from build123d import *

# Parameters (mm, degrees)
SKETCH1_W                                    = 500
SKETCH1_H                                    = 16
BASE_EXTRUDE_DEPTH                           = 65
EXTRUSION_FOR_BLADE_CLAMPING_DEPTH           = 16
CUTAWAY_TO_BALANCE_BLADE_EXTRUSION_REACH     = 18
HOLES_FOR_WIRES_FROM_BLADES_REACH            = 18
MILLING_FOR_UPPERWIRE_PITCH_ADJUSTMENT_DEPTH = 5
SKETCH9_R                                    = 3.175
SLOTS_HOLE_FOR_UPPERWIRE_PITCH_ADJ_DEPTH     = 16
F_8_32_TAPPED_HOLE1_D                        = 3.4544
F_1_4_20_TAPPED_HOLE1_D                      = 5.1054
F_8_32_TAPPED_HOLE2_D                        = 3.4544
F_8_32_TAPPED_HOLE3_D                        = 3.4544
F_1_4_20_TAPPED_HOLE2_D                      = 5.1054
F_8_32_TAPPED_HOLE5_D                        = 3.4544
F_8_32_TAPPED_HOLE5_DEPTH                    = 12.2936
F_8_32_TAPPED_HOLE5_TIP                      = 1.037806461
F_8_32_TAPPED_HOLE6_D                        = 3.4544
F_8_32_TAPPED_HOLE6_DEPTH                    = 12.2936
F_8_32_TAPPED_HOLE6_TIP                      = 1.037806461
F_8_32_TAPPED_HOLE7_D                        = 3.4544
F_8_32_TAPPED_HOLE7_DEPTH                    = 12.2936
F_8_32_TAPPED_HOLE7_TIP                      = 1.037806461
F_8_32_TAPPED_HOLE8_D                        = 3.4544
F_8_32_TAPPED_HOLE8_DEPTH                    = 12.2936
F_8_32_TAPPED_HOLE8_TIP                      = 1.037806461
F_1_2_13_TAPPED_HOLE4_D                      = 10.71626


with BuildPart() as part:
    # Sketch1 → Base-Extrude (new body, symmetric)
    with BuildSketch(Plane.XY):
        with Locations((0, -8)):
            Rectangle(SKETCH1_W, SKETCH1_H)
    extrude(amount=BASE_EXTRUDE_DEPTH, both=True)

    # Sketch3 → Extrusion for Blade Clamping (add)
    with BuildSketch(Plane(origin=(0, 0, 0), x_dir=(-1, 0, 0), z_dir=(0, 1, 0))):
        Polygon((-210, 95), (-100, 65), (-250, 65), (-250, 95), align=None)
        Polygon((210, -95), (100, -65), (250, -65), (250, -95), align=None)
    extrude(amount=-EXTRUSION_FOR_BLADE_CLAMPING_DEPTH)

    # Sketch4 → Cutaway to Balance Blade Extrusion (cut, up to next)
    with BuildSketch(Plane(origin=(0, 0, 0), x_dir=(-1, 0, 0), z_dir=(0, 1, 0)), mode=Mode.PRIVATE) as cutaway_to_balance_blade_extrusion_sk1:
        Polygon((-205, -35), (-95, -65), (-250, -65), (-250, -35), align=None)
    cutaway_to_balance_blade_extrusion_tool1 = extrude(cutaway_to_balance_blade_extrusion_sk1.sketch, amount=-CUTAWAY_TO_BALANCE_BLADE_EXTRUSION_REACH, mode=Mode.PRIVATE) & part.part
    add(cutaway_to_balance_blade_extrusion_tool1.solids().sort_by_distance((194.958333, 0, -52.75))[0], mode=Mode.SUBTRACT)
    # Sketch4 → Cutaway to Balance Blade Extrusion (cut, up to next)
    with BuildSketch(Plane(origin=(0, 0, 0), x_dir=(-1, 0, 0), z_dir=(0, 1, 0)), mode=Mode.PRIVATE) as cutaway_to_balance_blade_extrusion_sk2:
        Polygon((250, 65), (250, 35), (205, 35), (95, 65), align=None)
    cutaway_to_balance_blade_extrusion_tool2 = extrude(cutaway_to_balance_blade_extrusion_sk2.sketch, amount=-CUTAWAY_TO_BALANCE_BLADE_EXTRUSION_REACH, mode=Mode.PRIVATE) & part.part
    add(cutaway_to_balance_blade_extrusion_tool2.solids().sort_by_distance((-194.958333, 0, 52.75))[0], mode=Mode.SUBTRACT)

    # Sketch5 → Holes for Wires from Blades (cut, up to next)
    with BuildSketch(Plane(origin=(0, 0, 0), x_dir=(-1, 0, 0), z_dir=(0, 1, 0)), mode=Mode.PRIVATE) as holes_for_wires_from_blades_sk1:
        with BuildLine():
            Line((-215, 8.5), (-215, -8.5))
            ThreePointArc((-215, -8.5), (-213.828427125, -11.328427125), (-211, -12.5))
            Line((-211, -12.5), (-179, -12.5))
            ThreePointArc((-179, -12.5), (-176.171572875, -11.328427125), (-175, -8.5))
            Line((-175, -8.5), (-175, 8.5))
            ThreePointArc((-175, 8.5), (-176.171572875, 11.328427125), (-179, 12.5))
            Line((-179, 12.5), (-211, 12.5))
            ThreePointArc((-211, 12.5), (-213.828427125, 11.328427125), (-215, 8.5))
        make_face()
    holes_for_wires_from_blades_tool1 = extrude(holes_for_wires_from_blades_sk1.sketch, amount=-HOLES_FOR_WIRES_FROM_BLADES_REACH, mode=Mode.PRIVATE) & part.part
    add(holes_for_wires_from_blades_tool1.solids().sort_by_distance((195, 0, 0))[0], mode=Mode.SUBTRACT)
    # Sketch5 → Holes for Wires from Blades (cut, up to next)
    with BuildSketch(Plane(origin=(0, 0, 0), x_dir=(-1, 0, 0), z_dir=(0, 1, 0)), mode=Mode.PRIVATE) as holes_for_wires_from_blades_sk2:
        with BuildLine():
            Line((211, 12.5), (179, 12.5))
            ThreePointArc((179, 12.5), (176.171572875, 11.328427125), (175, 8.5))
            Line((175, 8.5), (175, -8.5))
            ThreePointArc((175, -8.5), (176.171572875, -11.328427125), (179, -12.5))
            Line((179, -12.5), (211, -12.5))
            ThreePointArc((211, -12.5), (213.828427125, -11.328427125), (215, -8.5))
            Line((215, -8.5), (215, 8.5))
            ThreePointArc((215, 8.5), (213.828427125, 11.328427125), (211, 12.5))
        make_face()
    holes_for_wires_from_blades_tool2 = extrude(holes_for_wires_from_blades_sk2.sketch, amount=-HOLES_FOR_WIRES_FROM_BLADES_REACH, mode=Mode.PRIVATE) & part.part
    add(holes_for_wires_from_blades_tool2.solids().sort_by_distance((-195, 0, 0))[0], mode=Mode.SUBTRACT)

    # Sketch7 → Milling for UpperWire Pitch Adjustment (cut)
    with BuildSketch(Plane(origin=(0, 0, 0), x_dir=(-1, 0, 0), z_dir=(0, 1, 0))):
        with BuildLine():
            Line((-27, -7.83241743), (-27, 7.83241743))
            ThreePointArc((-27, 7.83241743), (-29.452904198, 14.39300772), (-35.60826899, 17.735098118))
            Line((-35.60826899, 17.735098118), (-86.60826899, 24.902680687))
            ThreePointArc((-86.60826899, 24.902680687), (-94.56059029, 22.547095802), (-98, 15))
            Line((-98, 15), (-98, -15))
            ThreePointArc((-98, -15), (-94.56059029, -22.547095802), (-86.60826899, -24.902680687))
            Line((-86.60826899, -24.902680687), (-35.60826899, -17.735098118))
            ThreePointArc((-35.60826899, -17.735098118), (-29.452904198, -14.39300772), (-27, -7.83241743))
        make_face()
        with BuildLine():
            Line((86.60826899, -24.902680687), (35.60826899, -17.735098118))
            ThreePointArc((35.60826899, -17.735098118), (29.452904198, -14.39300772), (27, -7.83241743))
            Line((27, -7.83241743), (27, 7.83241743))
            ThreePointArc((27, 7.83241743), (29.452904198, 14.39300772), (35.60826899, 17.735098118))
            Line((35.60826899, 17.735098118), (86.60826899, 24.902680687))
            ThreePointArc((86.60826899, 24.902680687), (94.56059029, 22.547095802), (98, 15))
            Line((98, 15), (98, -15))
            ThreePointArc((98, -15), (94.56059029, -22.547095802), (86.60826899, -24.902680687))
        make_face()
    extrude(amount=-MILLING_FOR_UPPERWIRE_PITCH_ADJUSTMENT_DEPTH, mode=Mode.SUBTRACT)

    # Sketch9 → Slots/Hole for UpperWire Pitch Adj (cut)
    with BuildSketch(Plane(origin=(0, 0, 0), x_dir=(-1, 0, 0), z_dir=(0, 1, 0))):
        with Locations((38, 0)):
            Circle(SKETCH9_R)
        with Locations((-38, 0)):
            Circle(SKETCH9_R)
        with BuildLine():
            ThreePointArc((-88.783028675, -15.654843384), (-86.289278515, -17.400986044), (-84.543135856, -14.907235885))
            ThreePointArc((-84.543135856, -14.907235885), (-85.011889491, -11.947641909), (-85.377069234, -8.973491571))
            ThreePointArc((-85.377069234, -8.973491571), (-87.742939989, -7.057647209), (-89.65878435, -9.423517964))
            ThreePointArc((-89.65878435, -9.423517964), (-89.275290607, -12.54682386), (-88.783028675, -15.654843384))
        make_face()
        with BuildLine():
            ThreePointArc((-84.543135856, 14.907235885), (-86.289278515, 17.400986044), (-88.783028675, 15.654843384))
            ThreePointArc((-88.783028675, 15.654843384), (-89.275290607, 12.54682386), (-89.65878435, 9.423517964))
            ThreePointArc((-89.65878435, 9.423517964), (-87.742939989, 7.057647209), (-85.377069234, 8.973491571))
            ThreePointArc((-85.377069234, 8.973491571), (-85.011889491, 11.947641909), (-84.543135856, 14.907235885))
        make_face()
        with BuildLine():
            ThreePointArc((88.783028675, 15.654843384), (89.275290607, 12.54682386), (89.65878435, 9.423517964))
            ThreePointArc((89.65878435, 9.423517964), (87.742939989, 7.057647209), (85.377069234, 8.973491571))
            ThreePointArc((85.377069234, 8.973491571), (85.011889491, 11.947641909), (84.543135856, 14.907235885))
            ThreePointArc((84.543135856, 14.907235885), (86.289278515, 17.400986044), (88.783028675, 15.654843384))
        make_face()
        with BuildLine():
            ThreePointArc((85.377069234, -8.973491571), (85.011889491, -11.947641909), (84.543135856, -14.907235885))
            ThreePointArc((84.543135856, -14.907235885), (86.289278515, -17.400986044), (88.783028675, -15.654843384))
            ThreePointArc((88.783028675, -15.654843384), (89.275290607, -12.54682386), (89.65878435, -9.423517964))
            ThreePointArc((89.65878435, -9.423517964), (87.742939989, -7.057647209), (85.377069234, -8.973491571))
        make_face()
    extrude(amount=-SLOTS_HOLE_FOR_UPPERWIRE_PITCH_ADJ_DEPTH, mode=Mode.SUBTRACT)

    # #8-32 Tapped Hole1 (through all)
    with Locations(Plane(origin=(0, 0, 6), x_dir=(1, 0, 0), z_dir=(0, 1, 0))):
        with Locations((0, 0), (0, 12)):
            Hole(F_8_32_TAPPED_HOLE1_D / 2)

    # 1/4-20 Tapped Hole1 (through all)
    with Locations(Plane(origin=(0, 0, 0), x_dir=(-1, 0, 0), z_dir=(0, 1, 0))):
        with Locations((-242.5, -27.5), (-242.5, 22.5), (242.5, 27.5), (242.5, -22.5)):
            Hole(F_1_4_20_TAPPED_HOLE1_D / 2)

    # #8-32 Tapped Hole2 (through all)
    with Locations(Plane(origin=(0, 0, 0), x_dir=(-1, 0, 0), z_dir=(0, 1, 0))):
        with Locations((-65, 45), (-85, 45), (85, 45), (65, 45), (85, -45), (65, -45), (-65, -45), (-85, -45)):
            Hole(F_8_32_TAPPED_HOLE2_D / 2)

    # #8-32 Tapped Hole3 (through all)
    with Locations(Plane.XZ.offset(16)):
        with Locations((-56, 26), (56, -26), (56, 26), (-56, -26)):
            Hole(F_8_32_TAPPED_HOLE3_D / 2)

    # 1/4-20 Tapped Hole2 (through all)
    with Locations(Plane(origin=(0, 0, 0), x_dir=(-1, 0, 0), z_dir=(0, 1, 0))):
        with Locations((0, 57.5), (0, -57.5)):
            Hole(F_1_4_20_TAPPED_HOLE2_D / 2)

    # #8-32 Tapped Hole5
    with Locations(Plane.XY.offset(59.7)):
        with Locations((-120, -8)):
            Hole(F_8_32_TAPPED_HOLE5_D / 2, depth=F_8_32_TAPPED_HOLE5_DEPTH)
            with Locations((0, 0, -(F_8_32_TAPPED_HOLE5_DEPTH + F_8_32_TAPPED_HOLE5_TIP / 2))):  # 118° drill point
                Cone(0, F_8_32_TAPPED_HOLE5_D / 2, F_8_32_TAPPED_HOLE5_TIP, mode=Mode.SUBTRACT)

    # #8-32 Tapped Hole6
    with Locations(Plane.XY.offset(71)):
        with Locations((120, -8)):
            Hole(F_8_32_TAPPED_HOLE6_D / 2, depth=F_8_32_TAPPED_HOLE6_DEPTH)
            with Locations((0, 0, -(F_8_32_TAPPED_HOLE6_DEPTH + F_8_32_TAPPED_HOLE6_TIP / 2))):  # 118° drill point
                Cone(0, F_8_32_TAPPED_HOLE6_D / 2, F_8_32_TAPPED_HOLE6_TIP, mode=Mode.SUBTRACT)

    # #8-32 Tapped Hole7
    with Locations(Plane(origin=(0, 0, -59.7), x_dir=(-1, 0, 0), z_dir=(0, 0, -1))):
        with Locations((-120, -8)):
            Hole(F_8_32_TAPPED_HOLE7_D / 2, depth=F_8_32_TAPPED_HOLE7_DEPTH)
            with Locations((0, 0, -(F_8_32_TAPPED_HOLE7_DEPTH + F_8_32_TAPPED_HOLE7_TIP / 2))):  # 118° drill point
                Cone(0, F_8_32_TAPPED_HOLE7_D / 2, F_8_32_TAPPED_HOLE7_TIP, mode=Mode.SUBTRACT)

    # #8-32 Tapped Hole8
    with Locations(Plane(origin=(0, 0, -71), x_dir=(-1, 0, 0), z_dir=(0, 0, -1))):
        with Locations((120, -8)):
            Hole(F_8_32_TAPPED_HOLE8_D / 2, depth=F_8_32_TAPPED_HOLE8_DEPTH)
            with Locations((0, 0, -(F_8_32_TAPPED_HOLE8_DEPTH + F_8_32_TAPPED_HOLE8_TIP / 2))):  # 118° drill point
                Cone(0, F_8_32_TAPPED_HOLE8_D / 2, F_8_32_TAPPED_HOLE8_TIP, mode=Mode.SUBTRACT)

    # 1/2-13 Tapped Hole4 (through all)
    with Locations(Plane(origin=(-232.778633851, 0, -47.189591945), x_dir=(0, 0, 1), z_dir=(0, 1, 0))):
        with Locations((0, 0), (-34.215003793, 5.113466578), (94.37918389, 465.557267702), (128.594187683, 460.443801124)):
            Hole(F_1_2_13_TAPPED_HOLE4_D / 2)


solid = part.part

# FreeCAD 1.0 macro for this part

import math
import FreeCAD as App
import Part
import Sketcher

V = App.Vector
Q = App.Units.Quantity


def add_polygon(sketch, points):
    """Adds a closed chain of lines whose ends are joined by coincident constraints."""
    first, n = sketch.GeometryCount, len(points)
    for a, b in zip(points, points[1:] + points[:1]):
        sketch.addGeometry(Part.LineSegment(App.Vector(*a, 0), App.Vector(*b, 0)), False)
    for i in range(n):
        sketch.addConstraint(Sketcher.Constraint("Coincident", first + i, 2, first + (i + 1) % n, 1))

doc = App.newDocument("Part")
body = doc.addObject("PartDesign::Body", "Body")

# Sketch on XY plane
sketch1 = body.newObject("Sketcher::SketchObject", "Sketch")
sketch1.AttachmentSupport = (doc.getObject("XY_Plane"), [""])
sketch1.MapMode = "FlatFace"
add_polygon(sketch1, [(-250, 0), (-250, -16), (250, -16), (250, 0)])  # lines 0-3
sketch1.addConstraint([
    Sketcher.Constraint("Vertical", 0),
    Sketcher.Constraint("Horizontal", 1),
    Sketcher.Constraint("Vertical", 2),
    Sketcher.Constraint("Horizontal", 3),
    Sketcher.Constraint("Symmetric", 2, 2, 3, 2, -1, 1),
    Sketcher.Constraint("DistanceX", 1, 1, 1, 2, Q("500 mm")),
    Sketcher.Constraint("DistanceY", 0, 2, 0, 1, Q("16 mm")),
])
pad1 = body.newObject("PartDesign::Pad", "Pad")
pad1.Profile = sketch1
pad1.Length = 130
pad1.Midplane = True

# Sketch on XZ plane
sketch2 = body.newObject("Sketcher::SketchObject", "Sketch001")
sketch2.AttachmentSupport = (doc.getObject("XZ_Plane"), [""])
sketch2.MapMode = "FlatFace"
add_polygon(sketch2, [(100, 65), (210, 95), (250, 95), (250, 65)])  # lines 0-3
add_polygon(sketch2, [(-100, -65), (-210, -95), (-250, -95), (-250, -65)])  # lines 4-7
sketch2.addConstraint([
    Sketcher.Constraint("Horizontal", 1),
    Sketcher.Constraint("Vertical", 2),
    Sketcher.Constraint("Horizontal", 3),
    Sketcher.Constraint("Horizontal", 5),
    Sketcher.Constraint("Vertical", 6),
    Sketcher.Constraint("Horizontal", 7),
    Sketcher.Constraint("Symmetric", 0, 2, 4, 2, -1, 1),
    Sketcher.Constraint("Symmetric", 2, 2, 6, 2, -1, 1),
    Sketcher.Constraint("Parallel", 0, 4),
    Sketcher.Constraint("DistanceX", 1, 1, 1, 2, Q("40 mm")),
    Sketcher.Constraint("DistanceX", 3, 2, 3, 1, Q("150 mm")),
    Sketcher.Constraint("DistanceY", 2, 2, 2, 1, Q("30 mm")),
    Sketcher.Constraint("DistanceX", -1, 1, 0, 2, Q("210 mm")),
    Sketcher.Constraint("DistanceY", -1, 1, 0, 2, Q("95 mm")),
])
pad2 = body.newObject("PartDesign::Pad", "Pad001")
pad2.Profile = sketch2
pad2.Length = 16

# Sketch on XZ plane
sketch3 = body.newObject("Sketcher::SketchObject", "Sketch002")
sketch3.AttachmentSupport = (doc.getObject("XZ_Plane"), [""])
sketch3.MapMode = "FlatFace"
add_polygon(sketch3, [(95, -65), (205, -35), (250, -35), (250, -65)])  # lines 0-3
sketch3.addConstraint([
    Sketcher.Constraint("Horizontal", 1),
    Sketcher.Constraint("Vertical", 2),
    Sketcher.Constraint("Horizontal", 3),
    Sketcher.Constraint("DistanceX", 1, 1, 1, 2, Q("45 mm")),
    Sketcher.Constraint("DistanceX", 3, 2, 3, 1, Q("155 mm")),
    Sketcher.Constraint("DistanceY", 2, 2, 2, 1, Q("30 mm")),
    Sketcher.Constraint("DistanceX", -1, 1, 0, 2, Q("205 mm")),
    Sketcher.Constraint("DistanceY", 0, 2, -1, 1, Q("35 mm")),
])
pocket1 = body.newObject("PartDesign::Pocket", "Pocket")
pocket1.Profile = sketch3
pocket1.Type = "UpToFirst"
pocket1.Reversed = True

# Sketch on XZ plane
sketch4 = body.newObject("Sketcher::SketchObject", "Sketch003")
sketch4.AttachmentSupport = (doc.getObject("XZ_Plane"), [""])
sketch4.MapMode = "FlatFace"
add_polygon(sketch4, [(-250, 35), (-250, 65), (-95, 65), (-205, 35)])  # lines 0-3
sketch4.addConstraint([
    Sketcher.Constraint("Vertical", 0),
    Sketcher.Constraint("Horizontal", 1),
    Sketcher.Constraint("Horizontal", 3),
    Sketcher.Constraint("DistanceX", 1, 1, 1, 2, Q("155 mm")),
    Sketcher.Constraint("DistanceX", 3, 2, 3, 1, Q("45 mm")),
    Sketcher.Constraint("DistanceY", 0, 1, 0, 2, Q("30 mm")),
    Sketcher.Constraint("DistanceX", 0, 2, -1, 1, Q("250 mm")),
    Sketcher.Constraint("DistanceY", -1, 1, 0, 2, Q("65 mm")),
])
pocket2 = body.newObject("PartDesign::Pocket", "Pocket001")
pocket2.Profile = sketch4
pocket2.Type = "UpToFirst"
pocket2.Reversed = True

# Sketch on XZ plane
sketch5 = body.newObject("Sketcher::SketchObject", "Sketch004")
sketch5.AttachmentSupport = (doc.getObject("XZ_Plane"), [""])
sketch5.MapMode = "FlatFace"
sketch5.addGeometry([
    Part.LineSegment(V(215, 8.5, 0), V(215, -8.5, 0)),  # 0
    Part.ArcOfCircle(Part.Circle(V(211, -8.5, 0), V(0, 0, 1), 4), math.radians(-90), math.radians(0)),  # 1
    Part.LineSegment(V(211, -12.5, 0), V(179, -12.5, 0)),  # 2
    Part.ArcOfCircle(Part.Circle(V(179, -8.5, 0), V(0, 0, 1), 4), math.radians(180), math.radians(270)),  # 3
    Part.LineSegment(V(175, -8.5, 0), V(175, 8.5, 0)),  # 4
    Part.ArcOfCircle(Part.Circle(V(179, 8.5, 0), V(0, 0, 1), 4), math.radians(90), math.radians(180)),  # 5
    Part.LineSegment(V(179, 12.5, 0), V(211, 12.5, 0)),  # 6
    Part.ArcOfCircle(Part.Circle(V(211, 8.5, 0), V(0, 0, 1), 4), math.radians(0), math.radians(90)),  # 7
], False)
sketch5.addConstraint([
    Sketcher.Constraint("Tangent", 0, 2, 1, 2),
    Sketcher.Constraint("Tangent", 1, 1, 2, 1),
    Sketcher.Constraint("Tangent", 2, 2, 3, 2),
    Sketcher.Constraint("Tangent", 3, 1, 4, 1),
    Sketcher.Constraint("Tangent", 4, 2, 5, 2),
    Sketcher.Constraint("Tangent", 5, 1, 6, 1),
    Sketcher.Constraint("Tangent", 6, 2, 7, 2),
    Sketcher.Constraint("Tangent", 7, 1, 0, 1),
    Sketcher.Constraint("Vertical", 0),
    Sketcher.Constraint("Horizontal", 2),
    Sketcher.Constraint("Vertical", 4),
    Sketcher.Constraint("Horizontal", 6),
    Sketcher.Constraint("Equal", 1, 3),
    Sketcher.Constraint("Equal", 3, 5),
    Sketcher.Constraint("Equal", 5, 7),
    Sketcher.Constraint("Radius", 1, Q("4 mm")),
    Sketcher.Constraint("DistanceX", 2, 2, 2, 1, Q("32 mm")),
    Sketcher.Constraint("DistanceY", 0, 2, 0, 1, Q("17 mm")),
    Sketcher.Constraint("DistanceX", -1, 1, 1, 3, Q("211 mm")),
    Sketcher.Constraint("DistanceY", 1, 3, -1, 1, Q("8.5 mm")),
])
pocket3 = body.newObject("PartDesign::Pocket", "Pocket002")
pocket3.Profile = sketch5
pocket3.Type = "UpToFirst"
pocket3.Reversed = True

# Sketch on XZ plane
sketch6 = body.newObject("Sketcher::SketchObject", "Sketch005")
sketch6.AttachmentSupport = (doc.getObject("XZ_Plane"), [""])
sketch6.MapMode = "FlatFace"
sketch6.addGeometry([
    Part.LineSegment(V(-211, 12.5, 0), V(-179, 12.5, 0)),  # 0
    Part.ArcOfCircle(Part.Circle(V(-179, 8.5, 0), V(0, 0, 1), 4), math.radians(0), math.radians(90)),  # 1
    Part.LineSegment(V(-175, 8.5, 0), V(-175, -8.5, 0)),  # 2
    Part.ArcOfCircle(Part.Circle(V(-179, -8.5, 0), V(0, 0, 1), 4), math.radians(-90), math.radians(0)),  # 3
    Part.LineSegment(V(-179, -12.5, 0), V(-211, -12.5, 0)),  # 4
    Part.ArcOfCircle(Part.Circle(V(-211, -8.5, 0), V(0, 0, 1), 4), math.radians(180), math.radians(270)),  # 5
    Part.LineSegment(V(-215, -8.5, 0), V(-215, 8.5, 0)),  # 6
    Part.ArcOfCircle(Part.Circle(V(-211, 8.5, 0), V(0, 0, 1), 4), math.radians(90), math.radians(180)),  # 7
], False)
sketch6.addConstraint([
    Sketcher.Constraint("Tangent", 0, 2, 1, 2),
    Sketcher.Constraint("Tangent", 1, 1, 2, 1),
    Sketcher.Constraint("Tangent", 2, 2, 3, 2),
    Sketcher.Constraint("Tangent", 3, 1, 4, 1),
    Sketcher.Constraint("Tangent", 4, 2, 5, 2),
    Sketcher.Constraint("Tangent", 5, 1, 6, 1),
    Sketcher.Constraint("Tangent", 6, 2, 7, 2),
    Sketcher.Constraint("Tangent", 7, 1, 0, 1),
    Sketcher.Constraint("Horizontal", 0),
    Sketcher.Constraint("Vertical", 2),
    Sketcher.Constraint("Horizontal", 4),
    Sketcher.Constraint("Vertical", 6),
    Sketcher.Constraint("Equal", 1, 3),
    Sketcher.Constraint("Equal", 3, 5),
    Sketcher.Constraint("Equal", 5, 7),
    Sketcher.Constraint("Radius", 1, Q("4 mm")),
    Sketcher.Constraint("DistanceX", 0, 1, 0, 2, Q("32 mm")),
    Sketcher.Constraint("DistanceY", 2, 2, 2, 1, Q("17 mm")),
    Sketcher.Constraint("DistanceX", 1, 3, -1, 1, Q("179 mm")),
    Sketcher.Constraint("DistanceY", -1, 1, 1, 3, Q("8.5 mm")),
])
pocket4 = body.newObject("PartDesign::Pocket", "Pocket003")
pocket4.Profile = sketch6
pocket4.Type = "UpToFirst"
pocket4.Reversed = True

# Sketch on XZ plane
sketch7 = body.newObject("Sketcher::SketchObject", "Sketch006")
sketch7.AttachmentSupport = (doc.getObject("XZ_Plane"), [""])
sketch7.MapMode = "FlatFace"
sketch7.addGeometry([
    Part.LineSegment(V(27, -8, 0), V(27, 8, 0)),  # 0
    Part.ArcOfCircle(Part.Circle(V(37, 8, 0), V(0, 0, 1), 10), math.radians(98), math.radians(180)),  # 1
    Part.LineSegment(V(36, 18, 0), V(87, 25, 0)),  # 2
    Part.ArcOfCircle(Part.Circle(V(88, 15, 0), V(0, 0, 1), 10), math.radians(0), math.radians(98)),  # 3
    Part.LineSegment(V(98, 15, 0), V(98, -15, 0)),  # 4
    Part.ArcOfCircle(Part.Circle(V(88, -15, 0), V(0, 0, 1), 10), math.radians(-98), math.radians(0)),  # 5
    Part.LineSegment(V(87, -25, 0), V(36, -18, 0)),  # 6
    Part.ArcOfCircle(Part.Circle(V(37, -8, 0), V(0, 0, 1), 10), math.radians(-180), math.radians(-98)),  # 7
    Part.LineSegment(V(-36, -18, 0), V(-87, -25, 0)),  # 8
    Part.ArcOfCircle(Part.Circle(V(-88, -15, 0), V(0, 0, 1), 10), math.radians(180), math.radians(278)),  # 9
    Part.LineSegment(V(-98, -15, 0), V(-98, 15, 0)),  # 10
    Part.ArcOfCircle(Part.Circle(V(-88, 15, 0), V(0, 0, 1), 10), math.radians(82), math.radians(180)),  # 11
    Part.LineSegment(V(-87, 25, 0), V(-36, 18, 0)),  # 12
    Part.ArcOfCircle(Part.Circle(V(-37, 8, 0), V(0, 0, 1), 10), math.radians(0), math.radians(82)),  # 13
    Part.LineSegment(V(-27, 8, 0), V(-27, -8, 0)),  # 14
    Part.ArcOfCircle(Part.Circle(V(-37, -8, 0), V(0, 0, 1), 10), math.radians(-82), math.radians(0)),  # 15
], False)
sketch7.addConstraint([
    Sketcher.Constraint("Tangent", 0, 2, 1, 2),
    Sketcher.Constraint("Tangent", 1, 1, 2, 1),
    Sketcher.Constraint("Tangent", 2, 2, 3, 2),
    Sketcher.Constraint("Tangent", 3, 1, 4, 1),
    Sketcher.Constraint("Tangent", 4, 2, 5, 2),
    Sketcher.Constraint("Tangent", 5, 1, 6, 1),
    Sketcher.Constraint("Tangent", 6, 2, 7, 2),
    Sketcher.Constraint("Tangent", 7, 1, 0, 1),
    Sketcher.Constraint("Tangent", 8, 2, 9, 2),
    Sketcher.Constraint("Tangent", 9, 1, 10, 1),
    Sketcher.Constraint("Tangent", 10, 2, 11, 2),
    Sketcher.Constraint("Tangent", 11, 1, 12, 1),
    Sketcher.Constraint("Tangent", 12, 2, 13, 2),
    Sketcher.Constraint("Tangent", 13, 1, 14, 1),
    Sketcher.Constraint("Tangent", 14, 2, 15, 2),
    Sketcher.Constraint("Tangent", 15, 1, 8, 1),
    Sketcher.Constraint("Vertical", 0),
    Sketcher.Constraint("Vertical", 4),
    Sketcher.Constraint("Vertical", 10),
    Sketcher.Constraint("Vertical", 14),
    Sketcher.Constraint("Equal", 1, 3),
    Sketcher.Constraint("Equal", 3, 5),
    Sketcher.Constraint("Equal", 5, 7),
    Sketcher.Constraint("Equal", 7, 9),
    Sketcher.Constraint("Equal", 9, 11),
    Sketcher.Constraint("Equal", 11, 13),
    Sketcher.Constraint("Equal", 13, 15),
    Sketcher.Constraint("Symmetric", 3, 3, 9, 3, -1, 1),
    Sketcher.Constraint("Symmetric", 7, 3, 13, 3, -1, 1),
    Sketcher.Constraint("Symmetric", 5, 1, 8, 2, -2),
    Sketcher.Constraint("Symmetric", 2, 2, 11, 1, -2),
    Sketcher.Constraint("Radius", 1, Q("10 mm")),
    Sketcher.Constraint("DistanceY", 4, 2, 4, 1, Q("30 mm")),
    Sketcher.Constraint("Angle", 2, Q("8 deg")),
    Sketcher.Constraint("DistanceX", -1, 1, 1, 3, Q("37 mm")),
    Sketcher.Constraint("DistanceX", -1, 1, 3, 3, Q("88 mm")),
])
pocket5 = body.newObject("PartDesign::Pocket", "Pocket004")
pocket5.Profile = sketch7
pocket5.Length = 5
pocket5.Reversed = True

# Sketch on XZ plane
sketch8 = body.newObject("Sketcher::SketchObject", "Sketch007")
sketch8.AttachmentSupport = (doc.getObject("XZ_Plane"), [""])
sketch8.MapMode = "FlatFace"
sketch8.addGeometry([
    Part.Circle(V(-38, 0, 0), V(0, 0, 1), 3.2),  # 0
    Part.Circle(V(38, 0, 0), V(0, 0, 1), 3.2),  # 1
    Part.ArcOfCircle(Part.Circle(V(86.7, -15.3, 0), V(0, 0, 1), 2.2), math.radians(170), math.radians(350)),  # 2
    Part.ArcOfCircle(Part.Circle(V(0, 0, 0), V(0, 0, 1), 85.8), math.radians(-10), math.radians(-6)),  # 3
    Part.ArcOfCircle(Part.Circle(V(87.5, -9.2, 0), V(0, 0, 1), 2.2), math.radians(-6), math.radians(174)),  # 4
    Part.ArcOfCircle(Part.Circle(V(0, 0, 0), V(0, 0, 1), 90.2), math.radians(-10), math.radians(-6)),  # 5
    Part.ArcOfCircle(Part.Circle(V(86.7, 15.3, 0), V(0, 0, 1), 2.2), math.radians(10), math.radians(190)),  # 6
    Part.ArcOfCircle(Part.Circle(V(0, 0, 0), V(0, 0, 1), 90.2), math.radians(6), math.radians(10)),  # 7
    Part.ArcOfCircle(Part.Circle(V(87.5, 9.2, 0), V(0, 0, 1), 2.2), math.radians(-174), math.radians(6)),  # 8
    Part.ArcOfCircle(Part.Circle(V(0, 0, 0), V(0, 0, 1), 85.8), math.radians(6), math.radians(10)),  # 9
    Part.ArcOfCircle(Part.Circle(V(0, 0, 0), V(0, 0, 1), 90.2), math.radians(170), math.radians(174)),  # 10
    Part.ArcOfCircle(Part.Circle(V(-86.7, 15.3, 0), V(0, 0, 1), 2.2), math.radians(-10), math.radians(170)),  # 11
    Part.ArcOfCircle(Part.Circle(V(0, 0, 0), V(0, 0, 1), 85.8), math.radians(170), math.radians(174)),  # 12
    Part.ArcOfCircle(Part.Circle(V(-87.5, 9.2, 0), V(0, 0, 1), 2.2), math.radians(174), math.radians(354)),  # 13
    Part.ArcOfCircle(Part.Circle(V(0, 0, 0), V(0, 0, 1), 85.8), math.radians(-174), math.radians(-170)),  # 14
    Part.ArcOfCircle(Part.Circle(V(-86.7, -15.3, 0), V(0, 0, 1), 2.2), math.radians(-170), math.radians(10)),  # 15
    Part.ArcOfCircle(Part.Circle(V(0, 0, 0), V(0, 0, 1), 90.2), math.radians(-174), math.radians(-170)),  # 16
    Part.ArcOfCircle(Part.Circle(V(-87.5, -9.2, 0), V(0, 0, 1), 2.2), math.radians(6), math.radians(186)),  # 17
], False)
sketch8.addConstraint([
    Sketcher.Constraint("Tangent", 2, 1, 3, 1),
    Sketcher.Constraint("Tangent", 3, 2, 4, 2),
    Sketcher.Constraint("Tangent", 4, 1, 5, 2),
    Sketcher.Constraint("Tangent", 5, 1, 2, 2),
    Sketcher.Constraint("Tangent", 6, 1, 7, 2),
    Sketcher.Constraint("Tangent", 7, 1, 8, 2),
    Sketcher.Constraint("Tangent", 8, 1, 9, 1),
    Sketcher.Constraint("Tangent", 9, 2, 6, 2),
    Sketcher.Constraint("Tangent", 10, 1, 11, 2),
    Sketcher.Constraint("Tangent", 11, 1, 12, 1),
    Sketcher.Constraint("Tangent", 12, 2, 13, 2),
    Sketcher.Constraint("Tangent", 13, 1, 10, 2),
    Sketcher.Constraint("Tangent", 14, 2, 15, 2),
    Sketcher.Constraint("Tangent", 15, 1, 16, 2),
    Sketcher.Constraint("Tangent", 16, 1, 17, 2),
    Sketcher.Constraint("Tangent", 17, 1, 14, 1),
    Sketcher.Constraint("Coincident", 3, 3, -1, 1),
    Sketcher.Constraint("Coincident", 5, 3, -1, 1),
    Sketcher.Constraint("Coincident", 7, 3, -1, 1),
    Sketcher.Constraint("Coincident", 9, 3, -1, 1),
    Sketcher.Constraint("Coincident", 10, 3, -1, 1),
    Sketcher.Constraint("Coincident", 12, 3, -1, 1),
    Sketcher.Constraint("Coincident", 14, 3, -1, 1),
    Sketcher.Constraint("Coincident", 16, 3, -1, 1),
    Sketcher.Constraint("Equal", 0, 1),
    Sketcher.Constraint("Equal", 4, 6),
    Sketcher.Constraint("Equal", 5, 7),
    Sketcher.Constraint("Equal", 7, 10),
    Sketcher.Constraint("Equal", 8, 11),
    Sketcher.Constraint("Equal", 12, 14),
    Sketcher.Constraint("Equal", 13, 15),
    Sketcher.Constraint("Symmetric", 0, 3, 1, 3, -1, 1),
    Sketcher.Constraint("PointOnObject", 0, 3, -1),
    Sketcher.Constraint("Horizontal", 6, 3, 11, 3),
    Sketcher.Constraint("Horizontal", 8, 3, 13, 3),
    Sketcher.Constraint("Horizontal", 2, 3, 15, 3),
    Sketcher.Constraint("Horizontal", 4, 3, 17, 3),
    Sketcher.Constraint("Vertical", 2, 3, 6, 3),
    Sketcher.Constraint("Vertical", 4, 3, 8, 3),
    Sketcher.Constraint("Diameter", 0, Q("6.35 mm")),
    Sketcher.Constraint("DistanceX", 0, 3, -1, 1, Q("38 mm")),
    Sketcher.Constraint("Radius", 2, Q("2.15265 mm")),
    Sketcher.Constraint("Radius", 3, Q("85.84735 mm")),
    Sketcher.Constraint("DistanceX", 4, 3, 5, 1, Q("1.265102 mm")),
    Sketcher.Constraint("DistanceY", 2, 3, -1, 1, Q("15.28104 mm")),
])
pocket6 = body.newObject("PartDesign::Pocket", "Pocket005")
pocket6.Profile = sketch8
pocket6.Length = 16
pocket6.Reversed = True

# Sketch on XZ plane
sketch9 = body.newObject("Sketcher::SketchObject", "Sketch008")
sketch9.AttachmentSupport = (doc.getObject("XZ_Plane"), [""])
sketch9.MapMode = "FlatFace"
sketch9.addGeometry([
    Part.Circle(V(0, 6, 0), V(0, 0, 1), 1.7),
    Part.Circle(V(0, -6, 0), V(0, 0, 1), 1.7),
], False)
sketch9.addConstraint([
    Sketcher.Constraint("Equal", 0, 1),
    Sketcher.Constraint("Symmetric", 0, 3, 1, 3, -1, 1),
    Sketcher.Constraint("PointOnObject", 0, 3, -2),
    Sketcher.Constraint("DistanceY", -1, 1, 0, 3, Q("6 mm")),
    Sketcher.Constraint("Diameter", 0, Q("3.4544 mm")),
])
doc.recompute()
hole = body.newObject("PartDesign::Hole", "Hole")
hole.Profile = sketch9
hole.ThreadType = "None"
hole.Diameter = 3.4544
hole.DepthType = "ThroughAll"
hole.Reversed = True

# Sketch on XZ plane
sketch10 = body.newObject("Sketcher::SketchObject", "Sketch009")
sketch10.AttachmentSupport = (doc.getObject("XZ_Plane"), [""])
sketch10.MapMode = "FlatFace"
sketch10.addGeometry([
    Part.Circle(V(242.5, -27.5, 0), V(0, 0, 1), 2.6),
    Part.Circle(V(242.5, 22.5, 0), V(0, 0, 1), 2.6),
    Part.Circle(V(-242.5, 27.5, 0), V(0, 0, 1), 2.6),
    Part.Circle(V(-242.5, -22.5, 0), V(0, 0, 1), 2.6),
], False)
sketch10.addConstraint([
    Sketcher.Constraint("Equal", 0, 1),
    Sketcher.Constraint("Equal", 1, 2),
    Sketcher.Constraint("Equal", 2, 3),
    Sketcher.Constraint("Symmetric", 0, 3, 2, 3, -1, 1),
    Sketcher.Constraint("Symmetric", 1, 3, 3, 3, -1, 1),
    Sketcher.Constraint("Vertical", 0, 3, 1, 3),
    Sketcher.Constraint("DistanceY", 0, 3, 1, 3, Q("50 mm")),
    Sketcher.Constraint("DistanceX", 2, 3, 1, 3, Q("485 mm")),
    Sketcher.Constraint("DistanceY", 1, 3, 2, 3, Q("5 mm")),
    Sketcher.Constraint("Diameter", 0, Q("5.1054 mm")),
])
doc.recompute()
hole2 = body.newObject("PartDesign::Hole", "Hole001")
hole2.Profile = sketch10
hole2.ThreadType = "None"
hole2.Diameter = 5.1054
hole2.DepthType = "ThroughAll"
hole2.Reversed = True

# Sketch on XZ plane
sketch11 = body.newObject("Sketcher::SketchObject", "Sketch010")
sketch11.AttachmentSupport = (doc.getObject("XZ_Plane"), [""])
sketch11.MapMode = "FlatFace"
sketch11.addGeometry([
    Part.Circle(V(65, 45, 0), V(0, 0, 1), 1.7),  # 0
    Part.Circle(V(85, 45, 0), V(0, 0, 1), 1.7),  # 1
    Part.Circle(V(-85, 45, 0), V(0, 0, 1), 1.7),  # 2
    Part.Circle(V(-65, 45, 0), V(0, 0, 1), 1.7),  # 3
    Part.Circle(V(-85, -45, 0), V(0, 0, 1), 1.7),  # 4
    Part.Circle(V(-65, -45, 0), V(0, 0, 1), 1.7),  # 5
    Part.Circle(V(65, -45, 0), V(0, 0, 1), 1.7),  # 6
    Part.Circle(V(85, -45, 0), V(0, 0, 1), 1.7),  # 7
], False)
sketch11.addConstraint([
    Sketcher.Constraint("Equal", 0, 1),
    Sketcher.Constraint("Equal", 1, 2),
    Sketcher.Constraint("Equal", 2, 3),
    Sketcher.Constraint("Equal", 3, 4),
    Sketcher.Constraint("Equal", 4, 5),
    Sketcher.Constraint("Equal", 5, 6),
    Sketcher.Constraint("Equal", 6, 7),
    Sketcher.Constraint("Symmetric", 1, 3, 4, 3, -1, 1),
    Sketcher.Constraint("Symmetric", 0, 3, 5, 3, -1, 1),
    Sketcher.Constraint("Symmetric", 3, 3, 6, 3, -1, 1),
    Sketcher.Constraint("Symmetric", 2, 3, 7, 3, -1, 1),
    Sketcher.Constraint("Symmetric", 1, 3, 2, 3, -2),
    Sketcher.Constraint("Symmetric", 0, 3, 3, 3, -2),
    Sketcher.Constraint("Horizontal", 0, 3, 1, 3),
    Sketcher.Constraint("DistanceX", -1, 1, 0, 3, Q("65 mm")),
    Sketcher.Constraint("DistanceY", -1, 1, 0, 3, Q("45 mm")),
    Sketcher.Constraint("DistanceX", -1, 1, 1, 3, Q("85 mm")),
    Sketcher.Constraint("Diameter", 0, Q("3.4544 mm")),
])
doc.recompute()
hole3 = body.newObject("PartDesign::Hole", "Hole002")
hole3.Profile = sketch11
hole3.ThreadType = "None"
hole3.Diameter = 3.4544
hole3.DepthType = "ThroughAll"
hole3.Reversed = True

# Sketch on XZ plane
sketch12 = body.newObject("Sketcher::SketchObject", "Sketch011")
sketch12.AttachmentSupport = (doc.getObject("XZ_Plane"), [""])
sketch12.MapMode = "FlatFace"
sketch12.AttachmentOffset = App.Placement(V(0, 0, 16), App.Rotation())
sketch12.addGeometry([
    Part.Circle(V(-56, 26, 0), V(0, 0, 1), 1.7),
    Part.Circle(V(56, -26, 0), V(0, 0, 1), 1.7),
    Part.Circle(V(56, 26, 0), V(0, 0, 1), 1.7),
    Part.Circle(V(-56, -26, 0), V(0, 0, 1), 1.7),
], False)
sketch12.addConstraint([
    Sketcher.Constraint("Equal", 0, 1),
    Sketcher.Constraint("Equal", 1, 2),
    Sketcher.Constraint("Equal", 2, 3),
    Sketcher.Constraint("Symmetric", 0, 3, 1, 3, -1, 1),
    Sketcher.Constraint("Symmetric", 2, 3, 3, 3, -1, 1),
    Sketcher.Constraint("Symmetric", 0, 3, 2, 3, -2),
    Sketcher.Constraint("DistanceX", 0, 3, -1, 1, Q("56 mm")),
    Sketcher.Constraint("DistanceY", -1, 1, 0, 3, Q("26 mm")),
    Sketcher.Constraint("Diameter", 0, Q("3.4544 mm")),
])
doc.recompute()
hole4 = body.newObject("PartDesign::Hole", "Hole003")
hole4.Profile = sketch12
hole4.ThreadType = "None"
hole4.Diameter = 3.4544
hole4.DepthType = "ThroughAll"

# Sketch on XZ plane
sketch13 = body.newObject("Sketcher::SketchObject", "Sketch012")
sketch13.AttachmentSupport = (doc.getObject("XZ_Plane"), [""])
sketch13.MapMode = "FlatFace"
sketch13.addGeometry([
    Part.Circle(V(0, 57.5, 0), V(0, 0, 1), 2.6),
    Part.Circle(V(0, -57.5, 0), V(0, 0, 1), 2.6),
], False)
sketch13.addConstraint([
    Sketcher.Constraint("Equal", 0, 1),
    Sketcher.Constraint("Symmetric", 0, 3, 1, 3, -1, 1),
    Sketcher.Constraint("PointOnObject", 0, 3, -2),
    Sketcher.Constraint("DistanceY", 1, 3, 0, 3, Q("115 mm")),
    Sketcher.Constraint("Diameter", 0, Q("5.1054 mm")),
])
doc.recompute()
hole5 = body.newObject("PartDesign::Hole", "Hole004")
hole5.Profile = sketch13
hole5.ThreadType = "None"
hole5.Diameter = 5.1054
hole5.DepthType = "ThroughAll"
hole5.Reversed = True

# Sketch on XY plane
sketch14 = body.newObject("Sketcher::SketchObject", "Sketch013")
sketch14.AttachmentSupport = (doc.getObject("XY_Plane"), [""])
sketch14.MapMode = "FlatFace"
sketch14.AttachmentOffset = App.Placement(V(0, 0, 59.7), App.Rotation())
sketch14.addGeometry(Part.Circle(V(-120, -8, 0), V(0, 0, 1), 1.7), False)
sketch14.addConstraint([
    Sketcher.Constraint("DistanceX", 0, 3, -1, 1, Q("120 mm")),
    Sketcher.Constraint("DistanceY", 0, 3, -1, 1, Q("8 mm")),
    Sketcher.Constraint("Diameter", 0, Q("3.4544 mm")),
])
doc.recompute()
hole6 = body.newObject("PartDesign::Hole", "Hole005")
hole6.Profile = sketch14
hole6.ThreadType = "None"
hole6.Diameter = 3.4544
hole6.DepthType = "Dimension"
hole6.Depth = 12.2936
hole6.DrillPoint = "Angled"
hole6.DrillPointAngle = 118

# Sketch on XY plane
sketch15 = body.newObject("Sketcher::SketchObject", "Sketch014")
sketch15.AttachmentSupport = (doc.getObject("XY_Plane"), [""])
sketch15.MapMode = "FlatFace"
sketch15.AttachmentOffset = App.Placement(V(0, 0, 71), App.Rotation())
sketch15.addGeometry(Part.Circle(V(120, -8, 0), V(0, 0, 1), 1.7), False)
sketch15.addConstraint([
    Sketcher.Constraint("DistanceX", -1, 1, 0, 3, Q("120 mm")),
    Sketcher.Constraint("DistanceY", 0, 3, -1, 1, Q("8 mm")),
    Sketcher.Constraint("Diameter", 0, Q("3.4544 mm")),
])
doc.recompute()
hole7 = body.newObject("PartDesign::Hole", "Hole006")
hole7.Profile = sketch15
hole7.ThreadType = "None"
hole7.Diameter = 3.4544
hole7.DepthType = "Dimension"
hole7.Depth = 12.2936
hole7.DrillPoint = "Angled"
hole7.DrillPointAngle = 118

# Sketch on XY plane
sketch16 = body.newObject("Sketcher::SketchObject", "Sketch015")
sketch16.AttachmentSupport = (doc.getObject("XY_Plane"), [""])
sketch16.MapMode = "FlatFace"
sketch16.AttachmentOffset = App.Placement(V(0, 0, -59.7), App.Rotation())
sketch16.addGeometry(Part.Circle(V(120, -8, 0), V(0, 0, 1), 1.7), False)
sketch16.addConstraint([
    Sketcher.Constraint("DistanceX", -1, 1, 0, 3, Q("120 mm")),
    Sketcher.Constraint("DistanceY", 0, 3, -1, 1, Q("8 mm")),
    Sketcher.Constraint("Diameter", 0, Q("3.4544 mm")),
])
doc.recompute()
hole8 = body.newObject("PartDesign::Hole", "Hole007")
hole8.Profile = sketch16
hole8.ThreadType = "None"
hole8.Diameter = 3.4544
hole8.DepthType = "Dimension"
hole8.Depth = 12.2936
hole8.DrillPoint = "Angled"
hole8.DrillPointAngle = 118
hole8.Reversed = True

# Sketch on XY plane
sketch17 = body.newObject("Sketcher::SketchObject", "Sketch016")
sketch17.AttachmentSupport = (doc.getObject("XY_Plane"), [""])
sketch17.MapMode = "FlatFace"
sketch17.AttachmentOffset = App.Placement(V(0, 0, -71), App.Rotation())
sketch17.addGeometry(Part.Circle(V(-120, -8, 0), V(0, 0, 1), 1.7), False)
sketch17.addConstraint([
    Sketcher.Constraint("DistanceX", 0, 3, -1, 1, Q("120 mm")),
    Sketcher.Constraint("DistanceY", 0, 3, -1, 1, Q("8 mm")),
    Sketcher.Constraint("Diameter", 0, Q("3.4544 mm")),
])
doc.recompute()
hole9 = body.newObject("PartDesign::Hole", "Hole008")
hole9.Profile = sketch17
hole9.ThreadType = "None"
hole9.Diameter = 3.4544
hole9.DepthType = "Dimension"
hole9.Depth = 12.2936
hole9.DrillPoint = "Angled"
hole9.DrillPointAngle = 118
hole9.Reversed = True

# Sketch on XZ plane
sketch18 = body.newObject("Sketcher::SketchObject", "Sketch017")
sketch18.AttachmentSupport = (doc.getObject("XZ_Plane"), [""])
sketch18.MapMode = "FlatFace"
sketch18.addGeometry([
    Part.Circle(V(-233, -47, 0), V(0, 0, 1), 5),
    Part.Circle(V(-228, -81, 0), V(0, 0, 1), 5),
    Part.Circle(V(233, 47, 0), V(0, 0, 1), 5),
    Part.Circle(V(228, 81, 0), V(0, 0, 1), 5),
], False)
sketch18.addConstraint([
    Sketcher.Constraint("Equal", 0, 1),
    Sketcher.Constraint("Equal", 1, 2),
    Sketcher.Constraint("Equal", 2, 3),
    Sketcher.Constraint("Symmetric", 0, 3, 2, 3, -1, 1),
    Sketcher.Constraint("Symmetric", 1, 3, 3, 3, -1, 1),
    Sketcher.Constraint("Diameter", 0, Q("10.71626 mm")),
    Sketcher.Constraint("DistanceX", 1, 3, 2, 3, Q("460.443801 mm")),
    Sketcher.Constraint("DistanceY", 0, 3, -1, 1, Q("47.189592 mm")),
    Sketcher.Constraint("DistanceY", 1, 3, 3, 3, Q("162.809191 mm")),
    Sketcher.Constraint("DistanceX", 0, 3, -1, 1, Q("232.778634 mm")),
])
doc.recompute()
hole10 = body.newObject("PartDesign::Hole", "Hole009")
hole10.Profile = sketch18
hole10.ThreadType = "None"
hole10.Diameter = 10.71626
hole10.DepthType = "ThroughAll"
hole10.Reversed = True

doc.recompute()
